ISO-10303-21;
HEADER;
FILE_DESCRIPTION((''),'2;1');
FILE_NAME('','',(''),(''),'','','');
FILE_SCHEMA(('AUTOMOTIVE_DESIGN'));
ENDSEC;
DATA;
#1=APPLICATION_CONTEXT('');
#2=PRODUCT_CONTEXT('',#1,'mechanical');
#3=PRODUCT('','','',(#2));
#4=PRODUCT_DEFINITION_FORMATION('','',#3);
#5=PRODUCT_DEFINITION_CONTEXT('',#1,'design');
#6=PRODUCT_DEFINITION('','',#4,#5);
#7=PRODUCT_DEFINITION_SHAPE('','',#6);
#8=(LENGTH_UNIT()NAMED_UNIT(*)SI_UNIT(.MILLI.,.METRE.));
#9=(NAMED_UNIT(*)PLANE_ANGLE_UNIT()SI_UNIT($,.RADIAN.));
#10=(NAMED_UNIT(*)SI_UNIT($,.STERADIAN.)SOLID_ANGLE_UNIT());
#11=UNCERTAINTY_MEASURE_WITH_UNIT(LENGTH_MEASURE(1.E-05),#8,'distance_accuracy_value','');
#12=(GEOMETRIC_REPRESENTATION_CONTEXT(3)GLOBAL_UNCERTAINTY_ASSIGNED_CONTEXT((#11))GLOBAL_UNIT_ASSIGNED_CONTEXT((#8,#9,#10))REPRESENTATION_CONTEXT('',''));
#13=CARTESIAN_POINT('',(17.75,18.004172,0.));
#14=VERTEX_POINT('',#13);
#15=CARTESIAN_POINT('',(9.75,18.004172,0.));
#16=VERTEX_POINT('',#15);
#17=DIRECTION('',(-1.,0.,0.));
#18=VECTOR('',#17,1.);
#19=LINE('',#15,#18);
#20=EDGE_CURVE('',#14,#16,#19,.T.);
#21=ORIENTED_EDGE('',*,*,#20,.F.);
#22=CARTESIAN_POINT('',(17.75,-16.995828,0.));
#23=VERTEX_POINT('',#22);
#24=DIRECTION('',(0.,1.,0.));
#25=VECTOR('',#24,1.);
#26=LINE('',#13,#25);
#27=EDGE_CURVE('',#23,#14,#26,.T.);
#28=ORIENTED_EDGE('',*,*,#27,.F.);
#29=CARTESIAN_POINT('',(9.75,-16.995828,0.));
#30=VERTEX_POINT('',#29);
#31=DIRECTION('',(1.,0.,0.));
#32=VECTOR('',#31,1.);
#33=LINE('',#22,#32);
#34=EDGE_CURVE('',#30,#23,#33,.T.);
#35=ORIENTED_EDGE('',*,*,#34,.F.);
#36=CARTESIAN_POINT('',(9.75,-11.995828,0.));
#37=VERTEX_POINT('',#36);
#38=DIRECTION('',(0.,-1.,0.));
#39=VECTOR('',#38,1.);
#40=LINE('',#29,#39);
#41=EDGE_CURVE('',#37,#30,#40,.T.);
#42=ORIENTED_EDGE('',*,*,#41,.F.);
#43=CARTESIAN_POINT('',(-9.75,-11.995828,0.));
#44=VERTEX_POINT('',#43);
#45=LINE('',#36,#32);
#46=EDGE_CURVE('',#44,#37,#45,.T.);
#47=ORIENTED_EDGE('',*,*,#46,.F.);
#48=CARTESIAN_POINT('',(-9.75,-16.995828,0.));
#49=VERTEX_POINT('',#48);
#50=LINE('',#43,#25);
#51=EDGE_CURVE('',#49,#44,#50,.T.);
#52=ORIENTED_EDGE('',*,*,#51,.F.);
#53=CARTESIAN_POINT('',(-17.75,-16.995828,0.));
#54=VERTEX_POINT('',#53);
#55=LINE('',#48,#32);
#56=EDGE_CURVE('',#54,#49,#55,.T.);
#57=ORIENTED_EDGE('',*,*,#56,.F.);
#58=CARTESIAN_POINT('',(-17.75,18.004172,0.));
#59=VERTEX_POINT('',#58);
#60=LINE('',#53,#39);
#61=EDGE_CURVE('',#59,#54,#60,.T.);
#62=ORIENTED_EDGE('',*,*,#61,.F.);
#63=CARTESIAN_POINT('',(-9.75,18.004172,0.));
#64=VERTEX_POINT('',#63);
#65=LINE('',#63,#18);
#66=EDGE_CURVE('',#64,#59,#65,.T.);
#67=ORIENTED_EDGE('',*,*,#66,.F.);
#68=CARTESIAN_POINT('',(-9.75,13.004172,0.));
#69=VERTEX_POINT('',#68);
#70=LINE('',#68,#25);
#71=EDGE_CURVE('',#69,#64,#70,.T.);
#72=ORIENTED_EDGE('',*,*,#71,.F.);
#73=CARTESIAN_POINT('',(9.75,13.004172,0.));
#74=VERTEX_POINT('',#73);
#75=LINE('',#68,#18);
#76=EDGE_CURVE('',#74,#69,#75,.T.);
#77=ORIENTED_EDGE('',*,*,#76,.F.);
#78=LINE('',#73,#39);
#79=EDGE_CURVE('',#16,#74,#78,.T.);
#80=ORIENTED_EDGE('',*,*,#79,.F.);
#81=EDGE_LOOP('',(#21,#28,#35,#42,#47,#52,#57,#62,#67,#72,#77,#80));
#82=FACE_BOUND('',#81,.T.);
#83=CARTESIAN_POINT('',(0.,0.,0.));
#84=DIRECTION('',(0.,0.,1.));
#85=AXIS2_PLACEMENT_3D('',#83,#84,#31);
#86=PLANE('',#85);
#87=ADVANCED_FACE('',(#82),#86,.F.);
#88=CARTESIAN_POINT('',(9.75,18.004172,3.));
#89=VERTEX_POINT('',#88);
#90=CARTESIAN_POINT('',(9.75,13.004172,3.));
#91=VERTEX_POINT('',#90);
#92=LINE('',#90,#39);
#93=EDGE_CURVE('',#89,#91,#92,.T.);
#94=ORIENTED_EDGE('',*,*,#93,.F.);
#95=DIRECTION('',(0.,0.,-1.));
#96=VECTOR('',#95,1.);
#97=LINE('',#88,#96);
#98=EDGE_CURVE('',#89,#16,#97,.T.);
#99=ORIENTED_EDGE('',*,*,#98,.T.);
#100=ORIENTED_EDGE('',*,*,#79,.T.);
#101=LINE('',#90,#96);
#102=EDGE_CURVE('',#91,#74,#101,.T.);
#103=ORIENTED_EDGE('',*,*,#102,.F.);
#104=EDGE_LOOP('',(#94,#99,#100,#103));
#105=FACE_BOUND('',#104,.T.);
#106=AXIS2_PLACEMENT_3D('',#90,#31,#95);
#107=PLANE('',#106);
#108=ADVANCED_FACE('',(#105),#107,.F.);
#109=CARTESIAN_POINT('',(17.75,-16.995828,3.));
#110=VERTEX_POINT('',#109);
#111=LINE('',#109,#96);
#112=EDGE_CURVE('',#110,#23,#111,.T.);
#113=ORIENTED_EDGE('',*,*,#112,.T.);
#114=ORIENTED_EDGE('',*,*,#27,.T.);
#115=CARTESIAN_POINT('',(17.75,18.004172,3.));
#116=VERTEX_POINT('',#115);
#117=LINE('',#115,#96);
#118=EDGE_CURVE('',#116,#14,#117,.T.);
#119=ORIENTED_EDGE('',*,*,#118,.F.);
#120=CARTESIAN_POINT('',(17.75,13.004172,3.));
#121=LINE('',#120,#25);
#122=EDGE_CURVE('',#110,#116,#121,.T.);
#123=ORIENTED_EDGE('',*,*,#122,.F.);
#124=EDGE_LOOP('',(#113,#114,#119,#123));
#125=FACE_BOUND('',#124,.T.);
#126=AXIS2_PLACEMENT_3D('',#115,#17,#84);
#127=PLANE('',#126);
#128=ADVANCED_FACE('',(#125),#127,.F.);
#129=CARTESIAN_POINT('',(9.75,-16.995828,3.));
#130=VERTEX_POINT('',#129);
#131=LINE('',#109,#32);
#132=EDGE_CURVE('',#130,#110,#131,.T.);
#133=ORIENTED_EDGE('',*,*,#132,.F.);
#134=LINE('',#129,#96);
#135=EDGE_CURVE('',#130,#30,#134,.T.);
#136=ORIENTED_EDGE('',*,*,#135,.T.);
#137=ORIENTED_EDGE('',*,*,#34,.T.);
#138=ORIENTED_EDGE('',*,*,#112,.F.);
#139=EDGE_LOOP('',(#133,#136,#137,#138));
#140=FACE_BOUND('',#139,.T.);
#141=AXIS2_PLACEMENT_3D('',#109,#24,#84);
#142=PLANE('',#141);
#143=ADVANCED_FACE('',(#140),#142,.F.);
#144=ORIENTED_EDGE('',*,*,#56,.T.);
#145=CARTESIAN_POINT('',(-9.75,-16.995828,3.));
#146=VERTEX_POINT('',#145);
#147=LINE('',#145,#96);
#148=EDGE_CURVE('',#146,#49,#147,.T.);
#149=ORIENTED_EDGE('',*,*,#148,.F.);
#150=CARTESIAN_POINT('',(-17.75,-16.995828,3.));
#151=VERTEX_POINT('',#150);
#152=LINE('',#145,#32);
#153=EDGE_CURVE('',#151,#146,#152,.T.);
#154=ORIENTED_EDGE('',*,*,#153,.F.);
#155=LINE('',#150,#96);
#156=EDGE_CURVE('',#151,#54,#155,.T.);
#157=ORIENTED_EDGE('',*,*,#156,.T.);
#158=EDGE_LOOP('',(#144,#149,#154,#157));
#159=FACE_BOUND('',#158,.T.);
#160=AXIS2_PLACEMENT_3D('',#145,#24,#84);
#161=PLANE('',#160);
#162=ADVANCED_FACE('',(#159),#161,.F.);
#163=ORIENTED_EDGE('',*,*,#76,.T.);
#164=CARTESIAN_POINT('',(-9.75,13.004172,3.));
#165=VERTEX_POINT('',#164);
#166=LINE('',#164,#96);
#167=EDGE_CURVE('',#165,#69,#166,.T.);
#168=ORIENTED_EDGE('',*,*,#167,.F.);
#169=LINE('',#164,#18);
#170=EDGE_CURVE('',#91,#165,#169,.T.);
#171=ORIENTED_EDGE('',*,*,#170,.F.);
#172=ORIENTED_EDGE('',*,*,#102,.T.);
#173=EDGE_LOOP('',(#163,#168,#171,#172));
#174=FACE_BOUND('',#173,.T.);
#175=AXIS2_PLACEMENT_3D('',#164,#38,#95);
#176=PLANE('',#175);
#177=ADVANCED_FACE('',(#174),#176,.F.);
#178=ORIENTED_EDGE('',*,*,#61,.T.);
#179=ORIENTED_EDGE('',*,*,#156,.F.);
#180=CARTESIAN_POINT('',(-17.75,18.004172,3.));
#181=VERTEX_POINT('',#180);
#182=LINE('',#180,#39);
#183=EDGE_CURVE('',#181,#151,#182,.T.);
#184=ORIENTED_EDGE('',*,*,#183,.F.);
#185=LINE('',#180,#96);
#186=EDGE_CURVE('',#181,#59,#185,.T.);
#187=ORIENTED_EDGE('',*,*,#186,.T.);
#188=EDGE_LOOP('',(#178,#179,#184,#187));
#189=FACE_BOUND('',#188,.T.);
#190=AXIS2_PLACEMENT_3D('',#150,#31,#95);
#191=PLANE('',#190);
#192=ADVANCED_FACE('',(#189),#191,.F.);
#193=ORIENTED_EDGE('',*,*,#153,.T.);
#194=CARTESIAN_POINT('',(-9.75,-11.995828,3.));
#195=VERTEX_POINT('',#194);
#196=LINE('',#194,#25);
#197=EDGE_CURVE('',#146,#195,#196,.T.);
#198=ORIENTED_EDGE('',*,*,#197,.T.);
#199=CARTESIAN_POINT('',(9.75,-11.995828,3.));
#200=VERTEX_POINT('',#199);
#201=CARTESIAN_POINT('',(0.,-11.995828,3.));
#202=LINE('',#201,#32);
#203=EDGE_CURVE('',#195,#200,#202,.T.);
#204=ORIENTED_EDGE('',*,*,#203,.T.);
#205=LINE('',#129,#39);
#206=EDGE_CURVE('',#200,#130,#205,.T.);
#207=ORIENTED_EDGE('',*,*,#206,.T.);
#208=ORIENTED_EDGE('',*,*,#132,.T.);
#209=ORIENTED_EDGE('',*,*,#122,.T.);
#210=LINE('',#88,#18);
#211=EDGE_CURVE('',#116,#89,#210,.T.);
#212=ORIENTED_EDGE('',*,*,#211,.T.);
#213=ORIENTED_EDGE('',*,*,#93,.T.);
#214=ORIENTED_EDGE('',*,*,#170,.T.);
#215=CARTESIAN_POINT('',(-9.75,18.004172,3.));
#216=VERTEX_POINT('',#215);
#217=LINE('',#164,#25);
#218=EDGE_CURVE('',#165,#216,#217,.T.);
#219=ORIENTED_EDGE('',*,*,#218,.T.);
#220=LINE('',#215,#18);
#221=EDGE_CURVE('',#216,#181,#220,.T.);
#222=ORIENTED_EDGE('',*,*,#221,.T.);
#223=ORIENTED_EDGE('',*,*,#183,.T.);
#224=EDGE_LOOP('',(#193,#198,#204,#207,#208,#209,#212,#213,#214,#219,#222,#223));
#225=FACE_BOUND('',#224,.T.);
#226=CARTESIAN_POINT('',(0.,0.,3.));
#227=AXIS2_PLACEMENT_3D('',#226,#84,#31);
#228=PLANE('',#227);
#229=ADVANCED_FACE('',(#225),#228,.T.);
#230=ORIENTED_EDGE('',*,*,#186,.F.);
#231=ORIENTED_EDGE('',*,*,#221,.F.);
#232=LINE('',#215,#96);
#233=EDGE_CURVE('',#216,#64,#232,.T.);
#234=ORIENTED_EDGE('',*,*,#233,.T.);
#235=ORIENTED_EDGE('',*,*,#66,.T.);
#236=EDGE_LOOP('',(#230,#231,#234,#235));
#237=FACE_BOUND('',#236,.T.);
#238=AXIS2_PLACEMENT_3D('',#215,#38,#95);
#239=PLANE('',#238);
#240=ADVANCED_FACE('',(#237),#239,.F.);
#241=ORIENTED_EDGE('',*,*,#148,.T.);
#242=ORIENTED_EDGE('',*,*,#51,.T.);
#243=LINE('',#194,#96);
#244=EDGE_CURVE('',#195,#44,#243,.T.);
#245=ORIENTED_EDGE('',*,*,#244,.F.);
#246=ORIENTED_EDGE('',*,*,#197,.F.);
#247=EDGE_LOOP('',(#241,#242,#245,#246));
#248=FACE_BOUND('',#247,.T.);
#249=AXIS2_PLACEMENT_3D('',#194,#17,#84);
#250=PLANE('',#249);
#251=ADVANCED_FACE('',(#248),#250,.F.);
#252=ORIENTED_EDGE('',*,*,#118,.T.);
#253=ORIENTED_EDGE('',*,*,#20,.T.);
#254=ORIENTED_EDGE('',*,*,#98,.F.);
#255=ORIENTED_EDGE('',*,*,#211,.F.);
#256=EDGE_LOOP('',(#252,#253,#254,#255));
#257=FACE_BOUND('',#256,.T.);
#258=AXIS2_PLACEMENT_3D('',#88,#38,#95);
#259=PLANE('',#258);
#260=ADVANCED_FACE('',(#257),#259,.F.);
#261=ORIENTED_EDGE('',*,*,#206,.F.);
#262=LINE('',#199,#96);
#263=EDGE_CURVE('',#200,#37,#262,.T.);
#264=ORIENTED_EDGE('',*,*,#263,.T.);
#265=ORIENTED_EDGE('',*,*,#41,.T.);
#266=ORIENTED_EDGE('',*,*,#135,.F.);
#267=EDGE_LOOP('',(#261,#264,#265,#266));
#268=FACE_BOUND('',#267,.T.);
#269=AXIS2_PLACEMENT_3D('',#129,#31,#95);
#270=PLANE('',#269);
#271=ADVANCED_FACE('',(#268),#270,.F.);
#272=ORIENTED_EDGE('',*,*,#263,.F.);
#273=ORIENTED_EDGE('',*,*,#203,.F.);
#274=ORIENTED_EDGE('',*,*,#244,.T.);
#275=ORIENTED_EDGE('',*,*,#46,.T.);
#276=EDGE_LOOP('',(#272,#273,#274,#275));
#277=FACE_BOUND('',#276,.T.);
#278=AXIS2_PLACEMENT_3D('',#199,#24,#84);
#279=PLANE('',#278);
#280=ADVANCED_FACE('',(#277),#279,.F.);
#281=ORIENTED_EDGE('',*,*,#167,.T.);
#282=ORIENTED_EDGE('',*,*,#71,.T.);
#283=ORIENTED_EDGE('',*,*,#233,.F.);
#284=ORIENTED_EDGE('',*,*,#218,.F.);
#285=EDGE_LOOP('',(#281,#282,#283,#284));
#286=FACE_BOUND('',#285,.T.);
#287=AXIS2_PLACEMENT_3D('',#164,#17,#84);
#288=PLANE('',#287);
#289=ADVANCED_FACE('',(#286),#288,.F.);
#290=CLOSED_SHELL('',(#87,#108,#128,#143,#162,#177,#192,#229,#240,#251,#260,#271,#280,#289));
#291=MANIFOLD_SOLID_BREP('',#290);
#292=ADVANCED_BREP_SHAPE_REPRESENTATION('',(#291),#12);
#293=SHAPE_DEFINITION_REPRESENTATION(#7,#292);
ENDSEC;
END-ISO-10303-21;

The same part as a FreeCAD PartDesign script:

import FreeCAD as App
import Part
import Sketcher
from FreeCAD import Vector


def add_polygon(sketch, points):
    """Adds a closed chain of lines whose ends are joined by coincident constraints."""
    first, n = sketch.GeometryCount, len(points)
    for a, b in zip(points, points[1:] + points[:1]):
        sketch.addGeometry(Part.LineSegment(App.Vector(*a, 0), App.Vector(*b, 0)), False)
    for i in range(n):
        sketch.addConstraint(Sketcher.Constraint("Coincident", first + i, 2, first + (i + 1) % n, 1))

doc = App.newDocument("Part")
body = doc.addObject("PartDesign::Body", "Body")

sketch1 = body.newObject("Sketcher::SketchObject", "Sketch")
sketch1.AttachmentSupport = (doc.getObject("XY_Plane"), [""])
sketch1.MapMode = "FlatFace"
add_polygon(sketch1, [(9.8, 13), (-9.8, 13), (-9.8, 18), (-17.8, 18), (-17.8, -17), (-9.8, -17), (-9.8, -12), (9.8, -12), (9.8, -17), (17.8, -17), (17.8, 18), (9.8, 18)])
sketch1.addConstraint([
    Sketcher.Constraint("Horizontal", 0),
    Sketcher.Constraint("Vertical", 1),
    Sketcher.Constraint("Horizontal", 2),
    Sketcher.Constraint("Vertical", 3),
    Sketcher.Constraint("Horizontal", 4),
    Sketcher.Constraint("Vertical", 5),
    Sketcher.Constraint("Horizontal", 6),
    Sketcher.Constraint("Vertical", 7),
    Sketcher.Constraint("Horizontal", 8),
    Sketcher.Constraint("Vertical", 9),
    Sketcher.Constraint("Horizontal", 10),
    Sketcher.Constraint("Vertical", 11),
    Sketcher.Constraint("Symmetric", 4, 2, 7, 2, -2),
    Sketcher.Constraint("Symmetric", 2, 2, 9, 2, -2),
    Sketcher.Constraint("Vertical", 1, 2, 4, 2),
    Sketcher.Constraint("Vertical", 7, 2, 10, 2),
    Sketcher.Constraint("Equal", 1, 5),
    Sketcher.Constraint("DistanceX", 2, 2, 2, 1, 8.0),
    Sketcher.Constraint("DistanceY", 1, 1, 1, 2, 5.0),
    Sketcher.Constraint("DistanceY", 3, 2, 3, 1, 35.0),
    Sketcher.Constraint("DistanceX", 0, 2, 0, 1, 19.5),
    Sketcher.Constraint("DistanceY", -1, 1, 0, 2, 13.004172),
])
pad1 = body.newObject("PartDesign::Pad", "Pad")
pad1.Profile = sketch1
pad1.Length = 3

doc.recompute()
